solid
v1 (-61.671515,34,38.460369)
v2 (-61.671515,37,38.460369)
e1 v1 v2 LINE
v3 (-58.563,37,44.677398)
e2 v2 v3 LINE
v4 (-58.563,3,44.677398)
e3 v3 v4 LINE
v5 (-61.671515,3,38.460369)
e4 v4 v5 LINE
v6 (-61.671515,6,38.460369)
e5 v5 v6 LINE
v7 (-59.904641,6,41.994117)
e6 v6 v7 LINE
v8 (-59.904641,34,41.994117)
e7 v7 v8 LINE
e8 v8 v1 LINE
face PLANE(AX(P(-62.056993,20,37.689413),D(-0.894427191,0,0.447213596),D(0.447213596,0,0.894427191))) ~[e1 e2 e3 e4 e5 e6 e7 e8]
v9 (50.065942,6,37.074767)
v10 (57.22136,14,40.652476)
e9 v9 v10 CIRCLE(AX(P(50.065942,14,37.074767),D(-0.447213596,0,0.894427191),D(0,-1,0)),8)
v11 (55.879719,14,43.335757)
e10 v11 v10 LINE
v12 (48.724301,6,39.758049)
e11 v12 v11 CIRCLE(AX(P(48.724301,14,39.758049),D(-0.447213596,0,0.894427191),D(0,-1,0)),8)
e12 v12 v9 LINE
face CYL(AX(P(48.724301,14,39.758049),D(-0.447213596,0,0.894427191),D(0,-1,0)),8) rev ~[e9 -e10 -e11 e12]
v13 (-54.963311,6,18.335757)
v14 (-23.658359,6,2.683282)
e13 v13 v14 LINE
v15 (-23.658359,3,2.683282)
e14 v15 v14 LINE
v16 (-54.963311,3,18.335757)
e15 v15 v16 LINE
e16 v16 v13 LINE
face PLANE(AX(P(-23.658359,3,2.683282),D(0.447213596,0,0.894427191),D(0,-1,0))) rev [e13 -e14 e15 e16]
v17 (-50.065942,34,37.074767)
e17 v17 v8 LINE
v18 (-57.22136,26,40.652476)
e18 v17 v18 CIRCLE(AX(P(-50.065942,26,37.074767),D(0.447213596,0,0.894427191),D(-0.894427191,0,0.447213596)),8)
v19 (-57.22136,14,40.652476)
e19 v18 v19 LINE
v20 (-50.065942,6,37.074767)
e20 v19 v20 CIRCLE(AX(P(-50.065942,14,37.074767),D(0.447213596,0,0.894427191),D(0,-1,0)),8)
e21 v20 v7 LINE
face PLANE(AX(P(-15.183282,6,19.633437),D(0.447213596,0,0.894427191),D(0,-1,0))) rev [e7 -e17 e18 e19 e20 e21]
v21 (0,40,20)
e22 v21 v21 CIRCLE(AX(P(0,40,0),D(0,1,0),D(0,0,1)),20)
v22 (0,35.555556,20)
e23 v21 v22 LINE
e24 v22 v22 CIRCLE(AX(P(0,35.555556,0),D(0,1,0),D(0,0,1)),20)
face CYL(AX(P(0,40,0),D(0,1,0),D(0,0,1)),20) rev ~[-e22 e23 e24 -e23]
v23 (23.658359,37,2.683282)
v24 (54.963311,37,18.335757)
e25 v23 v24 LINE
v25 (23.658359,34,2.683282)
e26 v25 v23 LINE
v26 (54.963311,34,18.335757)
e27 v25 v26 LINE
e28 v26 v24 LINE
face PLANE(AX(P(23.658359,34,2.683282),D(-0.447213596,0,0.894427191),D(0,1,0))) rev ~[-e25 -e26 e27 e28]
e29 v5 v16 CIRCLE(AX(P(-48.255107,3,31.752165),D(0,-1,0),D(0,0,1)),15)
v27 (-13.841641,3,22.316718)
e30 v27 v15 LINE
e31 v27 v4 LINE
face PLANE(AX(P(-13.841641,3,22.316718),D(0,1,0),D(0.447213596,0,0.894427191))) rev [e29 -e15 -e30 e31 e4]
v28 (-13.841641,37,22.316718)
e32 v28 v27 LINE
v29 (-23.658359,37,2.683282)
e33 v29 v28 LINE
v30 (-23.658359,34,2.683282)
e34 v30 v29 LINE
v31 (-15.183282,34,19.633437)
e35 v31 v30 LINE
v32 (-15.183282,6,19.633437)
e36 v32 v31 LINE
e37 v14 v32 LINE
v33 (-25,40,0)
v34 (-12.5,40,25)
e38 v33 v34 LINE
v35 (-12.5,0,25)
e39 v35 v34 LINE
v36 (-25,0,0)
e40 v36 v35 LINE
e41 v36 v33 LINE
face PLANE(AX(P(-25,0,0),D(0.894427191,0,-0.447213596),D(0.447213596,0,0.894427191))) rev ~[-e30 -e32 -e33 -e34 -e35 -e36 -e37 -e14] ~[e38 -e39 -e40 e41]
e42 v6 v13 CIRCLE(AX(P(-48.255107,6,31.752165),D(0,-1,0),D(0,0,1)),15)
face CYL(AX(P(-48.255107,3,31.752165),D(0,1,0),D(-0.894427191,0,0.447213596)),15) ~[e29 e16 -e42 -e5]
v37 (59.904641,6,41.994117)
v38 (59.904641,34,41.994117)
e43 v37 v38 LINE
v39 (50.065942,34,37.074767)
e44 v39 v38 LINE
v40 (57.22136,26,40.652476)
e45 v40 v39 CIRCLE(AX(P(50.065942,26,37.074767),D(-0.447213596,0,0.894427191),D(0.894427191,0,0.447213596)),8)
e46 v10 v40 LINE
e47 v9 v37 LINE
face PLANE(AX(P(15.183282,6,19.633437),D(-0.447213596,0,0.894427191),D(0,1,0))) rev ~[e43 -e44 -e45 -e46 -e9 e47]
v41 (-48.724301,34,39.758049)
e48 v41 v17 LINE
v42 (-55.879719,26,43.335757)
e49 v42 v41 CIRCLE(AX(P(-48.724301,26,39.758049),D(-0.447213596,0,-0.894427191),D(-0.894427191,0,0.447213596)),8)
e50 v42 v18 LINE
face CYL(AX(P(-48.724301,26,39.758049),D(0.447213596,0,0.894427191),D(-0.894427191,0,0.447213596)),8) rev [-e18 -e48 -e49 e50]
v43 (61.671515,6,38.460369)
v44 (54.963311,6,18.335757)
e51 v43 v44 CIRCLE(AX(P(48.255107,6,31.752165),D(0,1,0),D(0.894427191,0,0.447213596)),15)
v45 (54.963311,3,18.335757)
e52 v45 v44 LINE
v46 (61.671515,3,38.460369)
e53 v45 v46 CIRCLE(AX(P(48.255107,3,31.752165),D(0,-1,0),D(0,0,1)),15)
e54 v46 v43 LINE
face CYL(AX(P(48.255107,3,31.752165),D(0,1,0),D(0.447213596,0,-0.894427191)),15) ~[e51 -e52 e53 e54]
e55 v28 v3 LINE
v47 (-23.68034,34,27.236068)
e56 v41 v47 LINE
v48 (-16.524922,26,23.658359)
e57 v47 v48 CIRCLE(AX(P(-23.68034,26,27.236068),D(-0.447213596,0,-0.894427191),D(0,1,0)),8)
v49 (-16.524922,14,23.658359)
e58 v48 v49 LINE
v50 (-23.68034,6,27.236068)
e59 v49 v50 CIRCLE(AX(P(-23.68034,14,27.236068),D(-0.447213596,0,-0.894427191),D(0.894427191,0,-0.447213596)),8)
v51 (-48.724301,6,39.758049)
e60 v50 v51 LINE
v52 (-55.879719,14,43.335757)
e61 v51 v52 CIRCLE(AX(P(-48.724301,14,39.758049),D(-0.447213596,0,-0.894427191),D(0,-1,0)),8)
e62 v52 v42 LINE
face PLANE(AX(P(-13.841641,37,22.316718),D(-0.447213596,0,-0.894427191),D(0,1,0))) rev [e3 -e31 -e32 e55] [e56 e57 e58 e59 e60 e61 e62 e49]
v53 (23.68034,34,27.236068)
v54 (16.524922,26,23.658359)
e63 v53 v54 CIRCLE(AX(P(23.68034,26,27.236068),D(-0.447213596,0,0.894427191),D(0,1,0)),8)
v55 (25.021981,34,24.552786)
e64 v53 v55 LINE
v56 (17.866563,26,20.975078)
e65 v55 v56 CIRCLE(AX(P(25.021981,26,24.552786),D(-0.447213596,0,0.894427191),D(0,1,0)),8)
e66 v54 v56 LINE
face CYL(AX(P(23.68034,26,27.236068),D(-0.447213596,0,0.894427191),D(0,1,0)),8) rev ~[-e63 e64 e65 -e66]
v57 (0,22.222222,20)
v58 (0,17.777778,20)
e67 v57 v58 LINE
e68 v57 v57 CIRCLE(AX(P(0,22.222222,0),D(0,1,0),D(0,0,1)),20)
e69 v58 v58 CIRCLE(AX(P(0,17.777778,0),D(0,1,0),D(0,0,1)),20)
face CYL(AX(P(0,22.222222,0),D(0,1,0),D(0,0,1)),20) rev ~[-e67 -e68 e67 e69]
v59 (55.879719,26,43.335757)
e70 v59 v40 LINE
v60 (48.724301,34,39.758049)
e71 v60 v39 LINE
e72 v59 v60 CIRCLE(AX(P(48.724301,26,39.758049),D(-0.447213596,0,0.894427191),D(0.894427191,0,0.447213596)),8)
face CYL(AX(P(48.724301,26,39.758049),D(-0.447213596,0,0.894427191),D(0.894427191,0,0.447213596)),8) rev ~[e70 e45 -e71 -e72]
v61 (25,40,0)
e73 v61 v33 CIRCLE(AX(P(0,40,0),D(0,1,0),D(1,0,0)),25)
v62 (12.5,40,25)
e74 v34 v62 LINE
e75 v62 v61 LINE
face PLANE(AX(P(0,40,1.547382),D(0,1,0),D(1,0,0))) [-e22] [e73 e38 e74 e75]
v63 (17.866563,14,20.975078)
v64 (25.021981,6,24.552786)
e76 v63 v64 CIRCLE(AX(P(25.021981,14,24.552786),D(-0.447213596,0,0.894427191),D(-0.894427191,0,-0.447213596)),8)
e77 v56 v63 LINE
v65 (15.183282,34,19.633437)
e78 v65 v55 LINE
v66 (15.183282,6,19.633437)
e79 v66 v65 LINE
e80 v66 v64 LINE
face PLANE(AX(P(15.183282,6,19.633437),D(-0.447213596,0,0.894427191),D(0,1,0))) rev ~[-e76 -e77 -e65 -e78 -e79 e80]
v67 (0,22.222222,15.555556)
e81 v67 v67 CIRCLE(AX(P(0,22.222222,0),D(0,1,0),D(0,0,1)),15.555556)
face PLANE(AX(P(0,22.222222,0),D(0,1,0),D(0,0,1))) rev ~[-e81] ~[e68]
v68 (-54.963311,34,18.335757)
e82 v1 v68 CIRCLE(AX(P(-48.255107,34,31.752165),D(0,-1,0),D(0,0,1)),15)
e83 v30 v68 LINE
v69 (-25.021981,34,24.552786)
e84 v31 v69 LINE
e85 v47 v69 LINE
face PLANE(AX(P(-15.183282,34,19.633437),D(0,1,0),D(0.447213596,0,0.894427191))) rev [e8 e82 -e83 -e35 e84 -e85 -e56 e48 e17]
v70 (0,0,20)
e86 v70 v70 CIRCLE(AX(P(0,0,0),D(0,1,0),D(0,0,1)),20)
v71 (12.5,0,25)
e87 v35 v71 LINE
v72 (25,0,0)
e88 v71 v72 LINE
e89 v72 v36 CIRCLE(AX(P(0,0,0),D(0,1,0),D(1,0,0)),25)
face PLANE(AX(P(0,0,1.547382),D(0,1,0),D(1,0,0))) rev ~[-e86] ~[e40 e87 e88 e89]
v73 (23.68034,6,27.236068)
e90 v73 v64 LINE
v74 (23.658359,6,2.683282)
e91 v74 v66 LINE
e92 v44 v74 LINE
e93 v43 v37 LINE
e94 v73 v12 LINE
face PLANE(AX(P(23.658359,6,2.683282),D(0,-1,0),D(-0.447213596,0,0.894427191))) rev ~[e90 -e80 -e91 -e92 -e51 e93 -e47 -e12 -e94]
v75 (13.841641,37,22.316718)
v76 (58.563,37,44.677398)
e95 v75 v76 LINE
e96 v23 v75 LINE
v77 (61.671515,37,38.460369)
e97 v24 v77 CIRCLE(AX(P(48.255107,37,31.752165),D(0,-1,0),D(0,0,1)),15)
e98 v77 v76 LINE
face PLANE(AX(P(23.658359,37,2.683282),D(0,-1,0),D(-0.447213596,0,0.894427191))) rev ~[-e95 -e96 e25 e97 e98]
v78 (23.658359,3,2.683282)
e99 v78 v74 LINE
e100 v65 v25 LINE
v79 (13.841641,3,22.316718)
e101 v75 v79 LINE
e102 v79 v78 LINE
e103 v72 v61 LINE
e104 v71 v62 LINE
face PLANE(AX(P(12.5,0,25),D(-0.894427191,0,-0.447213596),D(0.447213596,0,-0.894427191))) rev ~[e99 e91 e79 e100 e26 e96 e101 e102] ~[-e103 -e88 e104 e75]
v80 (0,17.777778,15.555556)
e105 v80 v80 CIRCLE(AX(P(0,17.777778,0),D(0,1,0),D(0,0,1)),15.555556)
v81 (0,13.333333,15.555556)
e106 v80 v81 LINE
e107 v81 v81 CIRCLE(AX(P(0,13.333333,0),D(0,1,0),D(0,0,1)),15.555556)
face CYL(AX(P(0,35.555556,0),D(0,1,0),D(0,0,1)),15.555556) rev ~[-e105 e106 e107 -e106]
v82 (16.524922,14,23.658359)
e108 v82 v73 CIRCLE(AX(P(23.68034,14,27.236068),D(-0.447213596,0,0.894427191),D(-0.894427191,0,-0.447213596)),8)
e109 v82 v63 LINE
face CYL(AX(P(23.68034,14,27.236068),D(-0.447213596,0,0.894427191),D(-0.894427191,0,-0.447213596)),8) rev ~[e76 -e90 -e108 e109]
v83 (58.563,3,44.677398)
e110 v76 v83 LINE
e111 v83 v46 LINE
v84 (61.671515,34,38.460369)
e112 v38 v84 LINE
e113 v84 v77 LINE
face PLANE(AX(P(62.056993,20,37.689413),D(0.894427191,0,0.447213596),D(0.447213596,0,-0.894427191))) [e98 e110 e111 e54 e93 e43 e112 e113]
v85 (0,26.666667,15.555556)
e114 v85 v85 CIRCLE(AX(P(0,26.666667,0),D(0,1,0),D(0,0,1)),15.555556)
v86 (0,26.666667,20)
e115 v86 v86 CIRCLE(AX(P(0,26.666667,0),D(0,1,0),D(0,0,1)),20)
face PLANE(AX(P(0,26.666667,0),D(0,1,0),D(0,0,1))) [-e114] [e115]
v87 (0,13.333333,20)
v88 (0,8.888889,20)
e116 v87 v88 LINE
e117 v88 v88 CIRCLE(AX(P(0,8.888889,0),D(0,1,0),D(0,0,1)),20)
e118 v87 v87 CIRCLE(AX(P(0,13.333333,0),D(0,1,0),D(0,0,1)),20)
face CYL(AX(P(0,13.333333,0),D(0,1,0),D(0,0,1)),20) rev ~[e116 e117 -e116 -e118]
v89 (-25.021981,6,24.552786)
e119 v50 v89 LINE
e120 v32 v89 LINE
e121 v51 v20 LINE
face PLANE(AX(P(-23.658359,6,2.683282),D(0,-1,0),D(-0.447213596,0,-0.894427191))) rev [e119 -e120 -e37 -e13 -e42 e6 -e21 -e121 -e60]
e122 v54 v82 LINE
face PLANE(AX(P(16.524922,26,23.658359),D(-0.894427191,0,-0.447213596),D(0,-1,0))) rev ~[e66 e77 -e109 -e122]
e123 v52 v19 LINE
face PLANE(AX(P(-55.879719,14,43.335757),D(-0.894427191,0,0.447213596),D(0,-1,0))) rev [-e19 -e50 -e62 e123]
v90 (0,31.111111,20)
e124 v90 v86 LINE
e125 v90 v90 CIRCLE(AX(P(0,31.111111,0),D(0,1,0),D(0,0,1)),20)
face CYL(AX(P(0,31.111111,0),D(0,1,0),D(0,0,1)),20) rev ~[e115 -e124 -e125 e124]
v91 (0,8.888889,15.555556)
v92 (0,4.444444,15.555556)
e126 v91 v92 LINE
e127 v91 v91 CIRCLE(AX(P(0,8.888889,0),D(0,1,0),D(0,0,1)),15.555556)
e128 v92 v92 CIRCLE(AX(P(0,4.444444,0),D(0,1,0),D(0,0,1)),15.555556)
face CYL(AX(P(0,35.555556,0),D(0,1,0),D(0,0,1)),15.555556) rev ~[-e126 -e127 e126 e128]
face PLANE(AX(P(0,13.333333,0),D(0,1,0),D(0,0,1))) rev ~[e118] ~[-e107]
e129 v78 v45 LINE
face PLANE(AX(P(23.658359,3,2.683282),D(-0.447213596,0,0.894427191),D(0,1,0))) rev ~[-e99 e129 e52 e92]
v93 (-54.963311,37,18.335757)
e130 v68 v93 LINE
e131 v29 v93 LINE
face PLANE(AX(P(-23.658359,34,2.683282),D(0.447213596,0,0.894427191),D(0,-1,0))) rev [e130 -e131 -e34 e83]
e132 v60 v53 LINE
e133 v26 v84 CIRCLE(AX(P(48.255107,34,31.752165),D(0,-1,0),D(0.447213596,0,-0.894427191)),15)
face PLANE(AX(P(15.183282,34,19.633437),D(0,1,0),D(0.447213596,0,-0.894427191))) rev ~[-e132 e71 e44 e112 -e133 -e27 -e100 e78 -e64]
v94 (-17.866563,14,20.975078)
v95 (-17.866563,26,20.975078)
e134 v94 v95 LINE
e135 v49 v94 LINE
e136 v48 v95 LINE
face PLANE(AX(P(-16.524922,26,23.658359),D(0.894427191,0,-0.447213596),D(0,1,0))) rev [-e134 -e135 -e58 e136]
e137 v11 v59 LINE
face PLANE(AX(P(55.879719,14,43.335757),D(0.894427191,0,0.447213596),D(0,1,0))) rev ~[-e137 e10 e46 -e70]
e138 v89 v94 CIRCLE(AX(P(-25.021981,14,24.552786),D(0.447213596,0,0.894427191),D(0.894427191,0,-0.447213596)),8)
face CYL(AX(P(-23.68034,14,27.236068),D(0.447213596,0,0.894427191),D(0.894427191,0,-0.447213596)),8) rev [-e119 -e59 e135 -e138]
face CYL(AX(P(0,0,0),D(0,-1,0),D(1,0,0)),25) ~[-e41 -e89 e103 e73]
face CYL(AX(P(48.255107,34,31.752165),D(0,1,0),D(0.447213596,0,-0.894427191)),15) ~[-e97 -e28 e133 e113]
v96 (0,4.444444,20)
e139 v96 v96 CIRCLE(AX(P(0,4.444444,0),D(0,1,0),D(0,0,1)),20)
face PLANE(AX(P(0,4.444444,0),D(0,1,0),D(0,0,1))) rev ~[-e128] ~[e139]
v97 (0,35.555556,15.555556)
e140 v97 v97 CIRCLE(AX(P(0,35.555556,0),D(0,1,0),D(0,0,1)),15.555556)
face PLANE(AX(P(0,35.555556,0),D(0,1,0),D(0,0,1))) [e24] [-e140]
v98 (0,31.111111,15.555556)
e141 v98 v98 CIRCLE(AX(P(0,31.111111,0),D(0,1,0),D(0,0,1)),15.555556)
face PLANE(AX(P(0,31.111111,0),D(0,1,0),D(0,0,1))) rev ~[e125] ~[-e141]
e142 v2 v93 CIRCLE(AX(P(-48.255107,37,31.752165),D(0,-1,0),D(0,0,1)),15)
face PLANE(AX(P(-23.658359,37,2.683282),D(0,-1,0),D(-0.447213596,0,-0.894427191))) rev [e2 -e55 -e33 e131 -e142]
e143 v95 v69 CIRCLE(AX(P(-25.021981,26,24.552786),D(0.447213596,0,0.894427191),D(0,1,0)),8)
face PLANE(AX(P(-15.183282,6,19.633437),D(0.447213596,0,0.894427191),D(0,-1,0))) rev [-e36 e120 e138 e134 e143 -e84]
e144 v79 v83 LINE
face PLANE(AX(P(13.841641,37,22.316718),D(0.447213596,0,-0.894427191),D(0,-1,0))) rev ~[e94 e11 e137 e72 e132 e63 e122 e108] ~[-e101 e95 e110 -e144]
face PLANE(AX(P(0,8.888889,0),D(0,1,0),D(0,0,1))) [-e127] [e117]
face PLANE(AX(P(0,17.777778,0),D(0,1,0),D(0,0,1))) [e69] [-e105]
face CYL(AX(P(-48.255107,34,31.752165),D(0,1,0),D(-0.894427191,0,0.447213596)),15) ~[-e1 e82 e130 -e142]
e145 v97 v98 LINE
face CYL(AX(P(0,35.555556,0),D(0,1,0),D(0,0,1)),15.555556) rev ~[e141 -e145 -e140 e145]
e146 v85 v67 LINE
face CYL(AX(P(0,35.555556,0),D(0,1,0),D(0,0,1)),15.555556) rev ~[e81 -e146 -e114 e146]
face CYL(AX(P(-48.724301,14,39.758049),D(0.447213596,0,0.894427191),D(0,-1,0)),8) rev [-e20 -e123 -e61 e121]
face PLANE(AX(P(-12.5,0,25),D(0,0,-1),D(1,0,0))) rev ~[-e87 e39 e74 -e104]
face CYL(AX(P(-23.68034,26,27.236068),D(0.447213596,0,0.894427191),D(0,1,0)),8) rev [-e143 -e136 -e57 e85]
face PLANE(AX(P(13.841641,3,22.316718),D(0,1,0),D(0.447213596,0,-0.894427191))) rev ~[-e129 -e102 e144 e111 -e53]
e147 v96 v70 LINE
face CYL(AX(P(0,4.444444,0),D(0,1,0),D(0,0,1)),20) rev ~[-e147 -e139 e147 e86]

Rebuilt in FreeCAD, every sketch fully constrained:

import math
import FreeCAD as App
import Part
import Sketcher
Q = App.Units.Quantity


def edges_at(feature, points):
    """Names of the edges that pass closest to the given points."""
    edges = feature.Shape.Edges
    near = lambda p: min(range(len(edges)), key=lambda i: edges[i].distToShape(Part.Vertex(*p))[0])
    return sorted({f"Edge{near(p) + 1}" for p in points})

doc = App.newDocument("Part")
body = doc.addObject("PartDesign::Body", "Body")

# Sketch on XZ plane
sketch1 = body.newObject("Sketcher::SketchObject", "Sketch")
sketch1.AttachmentSupport = (doc.getObject("XZ_Plane"), [""])
sketch1.MapMode = "FlatFace"
sketch1.addGeometry(Part.LineSegment(App.Vector(-25, 0, 0), App.Vector(-12, 25, 0)), False)
sketch1.addGeometry(Part.LineSegment(App.Vector(-12, 25, 0), App.Vector(12, 25, 0)), False)
sketch1.addGeometry(Part.LineSegment(App.Vector(12, 25, 0), App.Vector(25, 0, 0)), False)
sketch1.addGeometry(Part.ArcOfCircle(Part.Circle(App.Vector(0, 0, 0), App.Vector(0, 0, 1), 25), math.radians(180), math.radians(360)), False)
sketch1.addConstraint(Sketcher.Constraint("Coincident", 0, 2, 1, 1))
sketch1.addConstraint(Sketcher.Constraint("Coincident", 1, 2, 2, 1))
sketch1.addConstraint(Sketcher.Constraint("Coincident", 2, 2, 3, 2))
sketch1.addConstraint(Sketcher.Constraint("Coincident", 3, 1, 0, 1))
sketch1.addConstraint(Sketcher.Constraint("Horizontal", 1))
sketch1.addConstraint(Sketcher.Constraint("Coincident", 3, 3, -1, 1))
sketch1.addConstraint(Sketcher.Constraint("PointOnObject", 2, 2, -1))
sketch1.addConstraint(Sketcher.Constraint("PointOnObject", 3, 1, -1))
sketch1.addConstraint(Sketcher.Constraint("Equal", 0, 2))
sketch1.addConstraint(Sketcher.Constraint("Radius", 3, Q("25 mm")))
sketch1.addConstraint(Sketcher.Constraint("DistanceX", 1, 1, 1, 2, Q("25 mm")))
sketch1.addConstraint(Sketcher.Constraint("DistanceY", -1, 1, 0, 2, Q("25 mm")))
pad1 = body.newObject("PartDesign::Pad", "Pad")
pad1.Profile = sketch1
pad1.Length = 40
pad1.Reversed = True

# Sketch on an angled plane
sketch2 = body.newObject("Sketcher::SketchObject", "Sketch001")
sketch2.Placement = App.Placement(App.Vector(20, 0, 10), App.Rotation(App.Vector(0.447213595, 0, -0.894427191), App.Vector(0, 1, 0), App.Vector(0.894427191, 0, 0.447213595), "ZXY"))
sketch2.addGeometry(Part.LineSegment(App.Vector(8.2, 34, 0), App.Vector(8.2, 37, 0)), False)
sketch2.addGeometry(Part.LineSegment(App.Vector(8.2, 37, 0), App.Vector(-13.8, 37, 0)), False)
sketch2.addGeometry(Part.LineSegment(App.Vector(-13.8, 37, 0), App.Vector(-13.8, 3, 0)), False)
sketch2.addGeometry(Part.LineSegment(App.Vector(-13.8, 3, 0), App.Vector(8.2, 3, 0)), False)
sketch2.addGeometry(Part.LineSegment(App.Vector(8.2, 3, 0), App.Vector(8.2, 6, 0)), False)
sketch2.addGeometry(Part.LineSegment(App.Vector(8.2, 6, 0), App.Vector(-10.8, 6, 0)), False)
sketch2.addGeometry(Part.LineSegment(App.Vector(-10.8, 6, 0), App.Vector(-10.8, 34, 0)), False)
sketch2.addGeometry(Part.LineSegment(App.Vector(-10.8, 34, 0), App.Vector(8.2, 34, 0)), False)
sketch2.addConstraint(Sketcher.Constraint("Coincident", 0, 2, 1, 1))
sketch2.addConstraint(Sketcher.Constraint("Coincident", 1, 2, 2, 1))
sketch2.addConstraint(Sketcher.Constraint("Coincident", 2, 2, 3, 1))
sketch2.addConstraint(Sketcher.Constraint("Coincident", 3, 2, 4, 1))
sketch2.addConstraint(Sketcher.Constraint("Coincident", 4, 2, 5, 1))
sketch2.addConstraint(Sketcher.Constraint("Coincident", 5, 2, 6, 1))
sketch2.addConstraint(Sketcher.Constraint("Coincident", 6, 2, 7, 1))
sketch2.addConstraint(Sketcher.Constraint("Coincident", 7, 2, 0, 1))
sketch2.addConstraint(Sketcher.Constraint("Vertical", 0))
sketch2.addConstraint(Sketcher.Constraint("Horizontal", 1))
sketch2.addConstraint(Sketcher.Constraint("Vertical", 2))
sketch2.addConstraint(Sketcher.Constraint("Horizontal", 3))
sketch2.addConstraint(Sketcher.Constraint("Vertical", 4))
sketch2.addConstraint(Sketcher.Constraint("Horizontal", 5))
sketch2.addConstraint(Sketcher.Constraint("Vertical", 6))
sketch2.addConstraint(Sketcher.Constraint("Horizontal", 7))
sketch2.addConstraint(Sketcher.Constraint("Vertical", 0, 2, 3, 2))
sketch2.addConstraint(Sketcher.Constraint("Equal", 0, 4))
sketch2.addConstraint(Sketcher.Constraint("DistanceY", 0, 1, 0, 2, Q("3 mm")))
sketch2.addConstraint(Sketcher.Constraint("DistanceY", 2, 2, 2, 1, Q("34 mm")))
sketch2.addConstraint(Sketcher.Constraint("DistanceY", -1, 1, 0, 2, Q("37 mm")))
sketch2.addConstraint(Sketcher.Constraint("DistanceX", 2, 2, 5, 2, Q("3 mm")))
sketch2.addConstraint(Sketcher.Constraint("DistanceX", 1, 2, 1, 1, Q("21.95085 mm")))
sketch2.addConstraint(Sketcher.Constraint("DistanceX", -1, 1, 0, 2, Q("8.18034 mm")))
pad2 = body.newObject("PartDesign::Pad", "Pad001")
pad2.Profile = sketch2
pad2.Length = 50
doc.recompute()

fillet = body.newObject("PartDesign::Fillet", "Fillet")
fillet.Base = (pad2, edges_at(pad2, [(68.38, 35.5, 25.044), (68.38, 4.5, 25.044)]))
fillet.Radius = 15

# Sketch on an angled plane
sketch3 = body.newObject("Sketcher::SketchObject", "Sketch002")
sketch3.Placement = App.Placement(App.Vector(-6.158359, 0, 12.316718), App.Rotation(App.Vector(0.894427191, 0, 0.447213595), App.Vector(0, 1, 0), App.Vector(-0.447213595, 0, 0.894427191), "ZXY"))
sketch3.addGeometry(Part.LineSegment(App.Vector(25, 26, 0), App.Vector(25, 14, 0)), False)
sketch3.addGeometry(Part.ArcOfCircle(Part.Circle(App.Vector(33, 14, 0), App.Vector(0, 0, 1), 8), math.radians(-180), math.radians(-90)), False)
sketch3.addGeometry(Part.LineSegment(App.Vector(33, 6, 0), App.Vector(61, 6, 0)), False)
sketch3.addGeometry(Part.ArcOfCircle(Part.Circle(App.Vector(61, 14, 0), App.Vector(0, 0, 1), 8), math.radians(-90), math.radians(0)), False)
sketch3.addGeometry(Part.LineSegment(App.Vector(69, 14, 0), App.Vector(69, 26, 0)), False)
sketch3.addGeometry(Part.ArcOfCircle(Part.Circle(App.Vector(61, 26, 0), App.Vector(0, 0, 1), 8), math.radians(0), math.radians(90)), False)
sketch3.addGeometry(Part.LineSegment(App.Vector(61, 34, 0), App.Vector(33, 34, 0)), False)
sketch3.addGeometry(Part.ArcOfCircle(Part.Circle(App.Vector(33, 26, 0), App.Vector(0, 0, 1), 8), math.radians(90), math.radians(180)), False)
sketch3.addConstraint(Sketcher.Constraint("Tangent", 0, 2, 1, 1))
sketch3.addConstraint(Sketcher.Constraint("Tangent", 1, 2, 2, 1))
sketch3.addConstraint(Sketcher.Constraint("Tangent", 2, 2, 3, 1))
sketch3.addConstraint(Sketcher.Constraint("Tangent", 3, 2, 4, 1))
sketch3.addConstraint(Sketcher.Constraint("Tangent", 4, 2, 5, 1))
sketch3.addConstraint(Sketcher.Constraint("Tangent", 5, 2, 6, 1))
sketch3.addConstraint(Sketcher.Constraint("Tangent", 6, 2, 7, 1))
sketch3.addConstraint(Sketcher.Constraint("Tangent", 7, 2, 0, 1))
sketch3.addConstraint(Sketcher.Constraint("Vertical", 0))
sketch3.addConstraint(Sketcher.Constraint("Horizontal", 2))
sketch3.addConstraint(Sketcher.Constraint("Vertical", 4))
sketch3.addConstraint(Sketcher.Constraint("Horizontal", 6))
sketch3.addConstraint(Sketcher.Constraint("Equal", 1, 3))
sketch3.addConstraint(Sketcher.Constraint("Equal", 3, 5))
sketch3.addConstraint(Sketcher.Constraint("Equal", 5, 7))
sketch3.addConstraint(Sketcher.Constraint("Radius", 1, Q("8 mm")))
sketch3.addConstraint(Sketcher.Constraint("DistanceX", 2, 1, 2, 2, Q("28 mm")))
sketch3.addConstraint(Sketcher.Constraint("DistanceY", 0, 2, 0, 1, Q("12 mm")))
sketch3.addConstraint(Sketcher.Constraint("DistanceY", -1, 1, 1, 3, Q("14 mm")))
sketch3.addConstraint(Sketcher.Constraint("DistanceX", -1, 1, 1, 3, Q("33.36068 mm")))
pocket1 = body.newObject("PartDesign::Pocket", "Pocket")
pocket1.Profile = sketch3
pocket1.Length = 50
doc.recompute()

mirrored = body.newObject("PartDesign::Mirrored", "Mirrored")
mirrored.Originals = [pad2, pocket1]
mirrored.MirrorPlane = (doc.getObject("YZ_Plane"), [""])
body.Tip = mirrored
doc.recompute()

fillet2 = body.newObject("PartDesign::Fillet", "Fillet001")
fillet2.Base = (mirrored, edges_at(mirrored, [(-68.38, 35.5, 25.044), (-68.38, 4.5, 25.044)]))
fillet2.Radius = 15

# Sketch on XZ plane
sketch4 = body.newObject("Sketcher::SketchObject", "Sketch003")
sketch4.AttachmentSupport = (doc.getObject("XZ_Plane"), [""])
sketch4.MapMode = "FlatFace"
sketch4.AttachmentOffset = App.Placement(App.Vector(0, 0, -40), App.Rotation())
sketch4.addGeometry(Part.Circle(App.Vector(0, 0, 0), App.Vector(0, 0, 1), 20), False)
sketch4.addConstraint(Sketcher.Constraint("Coincident", 0, 3, -1, 1))
sketch4.addConstraint(Sketcher.Constraint("Diameter", 0, Q("40 mm")))
pocket2 = body.newObject("PartDesign::Pocket", "Pocket001")
pocket2.Profile = sketch4
pocket2.Length = 4.444444
pocket2.Reversed = True

# Sketch on XZ plane
sketch5 = body.newObject("Sketcher::SketchObject", "Sketch004")
sketch5.AttachmentSupport = (doc.getObject("XZ_Plane"), [""])
sketch5.MapMode = "FlatFace"
sketch5.AttachmentOffset = App.Placement(App.Vector(0, 0, -35.555556), App.Rotation())
sketch5.addGeometry(Part.Circle(App.Vector(0, 0, 0), App.Vector(0, 0, 1), 16), False)
sketch5.addConstraint(Sketcher.Constraint("Coincident", 0, 3, -1, 1))
sketch5.addConstraint(Sketcher.Constraint("Diameter", 0, Q("31.111111 mm")))
pocket3 = body.newObject("PartDesign::Pocket", "Pocket002")
pocket3.Profile = sketch5
pocket3.Type = "ThroughAll"
pocket3.Reversed = True
doc.recompute()

linearpattern = body.newObject("PartDesign::LinearPattern", "LinearPattern")
linearpattern.Originals = [pocket2]
linearpattern.Direction = (doc.getObject("Y_Axis"), [""])
linearpattern.Mode = "offset"
linearpattern.Offset = 8.888889
linearpattern.Occurrences = 5
linearpattern.Reversed = True
body.Tip = linearpattern

doc.recompute()
